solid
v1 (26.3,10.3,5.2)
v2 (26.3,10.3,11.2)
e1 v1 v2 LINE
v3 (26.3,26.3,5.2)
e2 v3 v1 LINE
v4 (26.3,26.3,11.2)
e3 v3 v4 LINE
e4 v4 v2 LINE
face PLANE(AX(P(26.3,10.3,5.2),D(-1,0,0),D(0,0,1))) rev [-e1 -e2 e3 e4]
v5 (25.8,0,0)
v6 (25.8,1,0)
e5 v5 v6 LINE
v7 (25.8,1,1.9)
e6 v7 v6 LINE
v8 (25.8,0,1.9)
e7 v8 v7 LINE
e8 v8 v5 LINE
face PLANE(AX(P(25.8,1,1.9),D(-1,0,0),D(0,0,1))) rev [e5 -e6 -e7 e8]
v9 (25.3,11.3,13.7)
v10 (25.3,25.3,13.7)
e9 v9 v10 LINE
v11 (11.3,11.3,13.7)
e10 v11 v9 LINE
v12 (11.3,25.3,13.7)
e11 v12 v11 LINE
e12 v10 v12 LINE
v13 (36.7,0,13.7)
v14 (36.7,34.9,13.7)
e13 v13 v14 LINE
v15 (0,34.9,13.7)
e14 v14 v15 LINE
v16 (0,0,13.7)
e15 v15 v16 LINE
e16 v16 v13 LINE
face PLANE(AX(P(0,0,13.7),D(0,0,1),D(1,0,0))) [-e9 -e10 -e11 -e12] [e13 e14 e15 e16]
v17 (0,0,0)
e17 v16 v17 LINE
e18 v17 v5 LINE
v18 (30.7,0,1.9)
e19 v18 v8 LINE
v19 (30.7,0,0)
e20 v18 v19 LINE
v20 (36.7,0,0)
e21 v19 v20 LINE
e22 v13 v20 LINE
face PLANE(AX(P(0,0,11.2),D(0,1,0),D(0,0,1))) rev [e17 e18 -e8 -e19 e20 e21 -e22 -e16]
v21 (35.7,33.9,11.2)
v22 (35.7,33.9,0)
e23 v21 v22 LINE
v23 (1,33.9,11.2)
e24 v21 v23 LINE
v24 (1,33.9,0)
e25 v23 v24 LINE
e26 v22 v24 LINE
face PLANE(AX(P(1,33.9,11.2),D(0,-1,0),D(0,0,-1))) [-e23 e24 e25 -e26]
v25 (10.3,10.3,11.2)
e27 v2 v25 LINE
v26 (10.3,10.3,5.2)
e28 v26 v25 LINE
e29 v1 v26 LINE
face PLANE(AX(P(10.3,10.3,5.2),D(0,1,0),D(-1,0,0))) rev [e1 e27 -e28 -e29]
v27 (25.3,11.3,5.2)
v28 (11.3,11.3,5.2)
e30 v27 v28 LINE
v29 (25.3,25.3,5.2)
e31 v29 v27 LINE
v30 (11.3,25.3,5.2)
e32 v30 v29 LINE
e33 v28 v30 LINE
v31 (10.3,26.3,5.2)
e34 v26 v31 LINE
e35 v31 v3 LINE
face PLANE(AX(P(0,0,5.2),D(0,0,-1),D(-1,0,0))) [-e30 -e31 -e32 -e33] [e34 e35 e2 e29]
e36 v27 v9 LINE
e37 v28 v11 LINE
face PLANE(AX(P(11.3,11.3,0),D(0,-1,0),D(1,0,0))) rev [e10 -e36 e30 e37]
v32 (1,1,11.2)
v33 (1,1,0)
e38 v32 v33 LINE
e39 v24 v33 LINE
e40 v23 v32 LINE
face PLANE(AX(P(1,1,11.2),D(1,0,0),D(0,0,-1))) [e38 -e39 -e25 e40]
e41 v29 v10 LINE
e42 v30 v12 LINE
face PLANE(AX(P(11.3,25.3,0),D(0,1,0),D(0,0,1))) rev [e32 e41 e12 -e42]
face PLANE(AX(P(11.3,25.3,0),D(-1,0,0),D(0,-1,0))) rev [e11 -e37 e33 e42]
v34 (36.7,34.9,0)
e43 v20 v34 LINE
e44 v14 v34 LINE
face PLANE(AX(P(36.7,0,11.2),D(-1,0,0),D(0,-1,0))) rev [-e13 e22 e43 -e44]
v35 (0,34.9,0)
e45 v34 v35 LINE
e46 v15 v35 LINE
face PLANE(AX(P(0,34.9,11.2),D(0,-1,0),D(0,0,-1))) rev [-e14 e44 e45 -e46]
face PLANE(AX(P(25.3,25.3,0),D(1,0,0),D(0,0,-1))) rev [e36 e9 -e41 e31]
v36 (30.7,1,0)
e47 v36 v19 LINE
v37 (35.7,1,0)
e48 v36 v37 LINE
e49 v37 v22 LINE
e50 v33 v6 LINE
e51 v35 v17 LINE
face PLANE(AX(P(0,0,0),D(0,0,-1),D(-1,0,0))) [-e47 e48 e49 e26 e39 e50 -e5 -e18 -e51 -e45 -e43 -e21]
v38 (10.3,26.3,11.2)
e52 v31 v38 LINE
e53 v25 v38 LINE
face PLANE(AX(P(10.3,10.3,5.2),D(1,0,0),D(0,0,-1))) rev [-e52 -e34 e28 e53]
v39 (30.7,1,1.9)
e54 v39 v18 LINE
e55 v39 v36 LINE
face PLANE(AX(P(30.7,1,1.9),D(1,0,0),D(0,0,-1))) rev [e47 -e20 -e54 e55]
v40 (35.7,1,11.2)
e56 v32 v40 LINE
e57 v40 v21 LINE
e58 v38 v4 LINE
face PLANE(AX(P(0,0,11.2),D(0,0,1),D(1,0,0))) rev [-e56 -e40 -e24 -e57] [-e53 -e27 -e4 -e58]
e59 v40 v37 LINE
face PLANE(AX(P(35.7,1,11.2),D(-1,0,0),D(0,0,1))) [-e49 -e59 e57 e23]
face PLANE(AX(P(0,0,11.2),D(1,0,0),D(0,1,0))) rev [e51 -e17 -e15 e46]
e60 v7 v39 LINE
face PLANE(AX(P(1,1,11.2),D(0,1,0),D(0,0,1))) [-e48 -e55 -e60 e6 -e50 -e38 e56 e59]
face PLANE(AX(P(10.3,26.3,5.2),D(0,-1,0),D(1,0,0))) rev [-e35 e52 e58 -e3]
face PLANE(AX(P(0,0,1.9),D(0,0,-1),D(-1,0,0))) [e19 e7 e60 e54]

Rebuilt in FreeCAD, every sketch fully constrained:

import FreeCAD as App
import Part
import Sketcher


def add_polygon(sketch, points):
    """Adds a closed chain of lines whose ends are joined by coincident constraints."""
    first, n = sketch.GeometryCount, len(points)
    for a, b in zip(points, points[1:] + points[:1]):
        sketch.addGeometry(Part.LineSegment(App.Vector(*a, 0), App.Vector(*b, 0)), False)
    for i in range(n):
        sketch.addConstraint(Sketcher.Constraint("Coincident", first + i, 2, first + (i + 1) % n, 1))

doc = App.newDocument("Part")
body = doc.addObject("PartDesign::Body", "Body")

# Sketch on XY plane
sketch1 = body.newObject("Sketcher::SketchObject", "Sketch")
sketch1.AttachmentSupport = (doc.getObject("XY_Plane"), [""])
sketch1.MapMode = "FlatFace"
add_polygon(sketch1, [(0, 34.9), (0, 0), (36.7, 0), (36.7, 34.9)])  # lines 0-3
add_polygon(sketch1, [(35.7, 1), (1, 1), (1, 33.9), (35.7, 33.9)])  # lines 4-7
sketch1.addConstraint([
    Sketcher.Constraint("Vertical", 0),
    Sketcher.Constraint("Horizontal", 1),
    Sketcher.Constraint("Vertical", 2),
    Sketcher.Constraint("Horizontal", 3),
    Sketcher.Constraint("Horizontal", 4),
    Sketcher.Constraint("Vertical", 5),
    Sketcher.Constraint("Horizontal", 6),
    Sketcher.Constraint("Vertical", 7),
    Sketcher.Constraint("Coincident", 0, 2, -1, 1),
    Sketcher.Constraint("DistanceX", 1, 1, 1, 2, 36.7),
    Sketcher.Constraint("DistanceX", 4, 2, 4, 1, 34.7),
    Sketcher.Constraint("DistanceY", 0, 2, 0, 1, 34.9),
    Sketcher.Constraint("DistanceY", 5, 1, 5, 2, 32.9),
    Sketcher.Constraint("DistanceX", -1, 1, 4, 2, 1.0),
    Sketcher.Constraint("DistanceY", -1, 1, 4, 2, 1.0),
])
pad1 = body.newObject("PartDesign::Pad", "Pad")
pad1.Profile = sketch1
pad1.Length = 11.2

# Sketch on XY plane
sketch2 = body.newObject("Sketcher::SketchObject", "Sketch001")
sketch2.AttachmentSupport = (doc.getObject("XY_Plane"), [""])
sketch2.MapMode = "FlatFace"
add_polygon(sketch2, [(30.7, 1), (30.7, 0), (25.8, 0), (25.8, 1)])  # lines 0-3
sketch2.addConstraint([
    Sketcher.Constraint("Vertical", 0),
    Sketcher.Constraint("Horizontal", 1),
    Sketcher.Constraint("Vertical", 2),
    Sketcher.Constraint("Horizontal", 3),
    Sketcher.Constraint("PointOnObject", 0, 2, -1),
    Sketcher.Constraint("DistanceY", 0, 2, 0, 1, 1.0),
    Sketcher.Constraint("DistanceX", 1, 2, 1, 1, 4.9),
    Sketcher.Constraint("DistanceX", -1, 1, 0, 2, 30.7),
])
pocket1 = body.newObject("PartDesign::Pocket", "Pocket")
pocket1.Profile = sketch2
pocket1.Length = 1.9
pocket1.Reversed = True

# Sketch on XY plane
sketch3 = body.newObject("Sketcher::SketchObject", "Sketch002")
sketch3.AttachmentSupport = (doc.getObject("XY_Plane"), [""])
sketch3.MapMode = "FlatFace"
sketch3.AttachmentOffset = App.Placement(App.Vector(0, 0, 11.2), App.Rotation())
add_polygon(sketch3, [(0, 34.9), (0, 0), (36.7, 0), (36.7, 34.9)])  # lines 0-3
sketch3.addConstraint([
    Sketcher.Constraint("Vertical", 0),
    Sketcher.Constraint("Horizontal", 1),
    Sketcher.Constraint("Vertical", 2),
    Sketcher.Constraint("Horizontal", 3),
    Sketcher.Constraint("Coincident", 0, 2, -1, 1),
    Sketcher.Constraint("DistanceX", 1, 1, 1, 2, 36.7),
    Sketcher.Constraint("DistanceY", 0, 2, 0, 1, 34.9),
])
pad2 = body.newObject("PartDesign::Pad", "Pad001")
pad2.Profile = sketch3
pad2.Length = 2.5

# Sketch on XY plane
sketch4 = body.newObject("Sketcher::SketchObject", "Sketch003")
sketch4.AttachmentSupport = (doc.getObject("XY_Plane"), [""])
sketch4.MapMode = "FlatFace"
sketch4.AttachmentOffset = App.Placement(App.Vector(0, 0, 13.7), App.Rotation())
add_polygon(sketch4, [(11.3, 25.3), (11.3, 11.3), (25.3, 11.3), (25.3, 25.3)])  # lines 0-3
sketch4.addConstraint([
    Sketcher.Constraint("Vertical", 0),
    Sketcher.Constraint("Horizontal", 1),
    Sketcher.Constraint("Vertical", 2),
    Sketcher.Constraint("Horizontal", 3),
    Sketcher.Constraint("Equal", 3, 0),
    Sketcher.Constraint("DistanceX", 1, 1, 1, 2, 14.0),
    Sketcher.Constraint("DistanceX", -1, 1, 0, 2, 11.3),
    Sketcher.Constraint("DistanceY", -1, 1, 0, 2, 11.3),
])
pocket2 = body.newObject("PartDesign::Pocket", "Pocket001")
pocket2.Profile = sketch4
pocket2.Type = "ThroughAll"

# Sketch on XY plane
sketch5 = body.newObject("Sketcher::SketchObject", "Sketch004")
sketch5.AttachmentSupport = (doc.getObject("XY_Plane"), [""])
sketch5.MapMode = "FlatFace"
sketch5.AttachmentOffset = App.Placement(App.Vector(0, 0, 11.2), App.Rotation())
add_polygon(sketch5, [(26.3, 26.3), (26.3, 10.3), (10.3, 10.3), (10.3, 26.3)])  # lines 0-3
add_polygon(sketch5, [(11.3, 11.3), (25.3, 11.3), (25.3, 25.3), (11.3, 25.3)])  # lines 4-7
sketch5.addConstraint([
    Sketcher.Constraint("Vertical", 0),
    Sketcher.Constraint("Horizontal", 1),
    Sketcher.Constraint("Vertical", 2),
    Sketcher.Constraint("Horizontal", 3),
    Sketcher.Constraint("Horizontal", 4),
    Sketcher.Constraint("Vertical", 5),
    Sketcher.Constraint("Horizontal", 6),
    Sketcher.Constraint("Vertical", 7),
    Sketcher.Constraint("Equal", 3, 0),
    Sketcher.Constraint("Equal", 6, 5),
    Sketcher.Constraint("DistanceX", 1, 2, 1, 1, 16.0),
    Sketcher.Constraint("DistanceX", 4, 1, 4, 2, 14.0),
    Sketcher.Constraint("DistanceX", 4, 2, 0, 2, 1.0),
    Sketcher.Constraint("DistanceY", 0, 2, 4, 2, 1.0),
    Sketcher.Constraint("DistanceX", -1, 1, 0, 2, 26.3),
    Sketcher.Constraint("DistanceY", -1, 1, 0, 2, 10.3),
])
pad3 = body.newObject("PartDesign::Pad", "Pad002")
pad3.Profile = sketch5
pad3.Length = 6
pad3.Reversed = True

doc.recompute()
